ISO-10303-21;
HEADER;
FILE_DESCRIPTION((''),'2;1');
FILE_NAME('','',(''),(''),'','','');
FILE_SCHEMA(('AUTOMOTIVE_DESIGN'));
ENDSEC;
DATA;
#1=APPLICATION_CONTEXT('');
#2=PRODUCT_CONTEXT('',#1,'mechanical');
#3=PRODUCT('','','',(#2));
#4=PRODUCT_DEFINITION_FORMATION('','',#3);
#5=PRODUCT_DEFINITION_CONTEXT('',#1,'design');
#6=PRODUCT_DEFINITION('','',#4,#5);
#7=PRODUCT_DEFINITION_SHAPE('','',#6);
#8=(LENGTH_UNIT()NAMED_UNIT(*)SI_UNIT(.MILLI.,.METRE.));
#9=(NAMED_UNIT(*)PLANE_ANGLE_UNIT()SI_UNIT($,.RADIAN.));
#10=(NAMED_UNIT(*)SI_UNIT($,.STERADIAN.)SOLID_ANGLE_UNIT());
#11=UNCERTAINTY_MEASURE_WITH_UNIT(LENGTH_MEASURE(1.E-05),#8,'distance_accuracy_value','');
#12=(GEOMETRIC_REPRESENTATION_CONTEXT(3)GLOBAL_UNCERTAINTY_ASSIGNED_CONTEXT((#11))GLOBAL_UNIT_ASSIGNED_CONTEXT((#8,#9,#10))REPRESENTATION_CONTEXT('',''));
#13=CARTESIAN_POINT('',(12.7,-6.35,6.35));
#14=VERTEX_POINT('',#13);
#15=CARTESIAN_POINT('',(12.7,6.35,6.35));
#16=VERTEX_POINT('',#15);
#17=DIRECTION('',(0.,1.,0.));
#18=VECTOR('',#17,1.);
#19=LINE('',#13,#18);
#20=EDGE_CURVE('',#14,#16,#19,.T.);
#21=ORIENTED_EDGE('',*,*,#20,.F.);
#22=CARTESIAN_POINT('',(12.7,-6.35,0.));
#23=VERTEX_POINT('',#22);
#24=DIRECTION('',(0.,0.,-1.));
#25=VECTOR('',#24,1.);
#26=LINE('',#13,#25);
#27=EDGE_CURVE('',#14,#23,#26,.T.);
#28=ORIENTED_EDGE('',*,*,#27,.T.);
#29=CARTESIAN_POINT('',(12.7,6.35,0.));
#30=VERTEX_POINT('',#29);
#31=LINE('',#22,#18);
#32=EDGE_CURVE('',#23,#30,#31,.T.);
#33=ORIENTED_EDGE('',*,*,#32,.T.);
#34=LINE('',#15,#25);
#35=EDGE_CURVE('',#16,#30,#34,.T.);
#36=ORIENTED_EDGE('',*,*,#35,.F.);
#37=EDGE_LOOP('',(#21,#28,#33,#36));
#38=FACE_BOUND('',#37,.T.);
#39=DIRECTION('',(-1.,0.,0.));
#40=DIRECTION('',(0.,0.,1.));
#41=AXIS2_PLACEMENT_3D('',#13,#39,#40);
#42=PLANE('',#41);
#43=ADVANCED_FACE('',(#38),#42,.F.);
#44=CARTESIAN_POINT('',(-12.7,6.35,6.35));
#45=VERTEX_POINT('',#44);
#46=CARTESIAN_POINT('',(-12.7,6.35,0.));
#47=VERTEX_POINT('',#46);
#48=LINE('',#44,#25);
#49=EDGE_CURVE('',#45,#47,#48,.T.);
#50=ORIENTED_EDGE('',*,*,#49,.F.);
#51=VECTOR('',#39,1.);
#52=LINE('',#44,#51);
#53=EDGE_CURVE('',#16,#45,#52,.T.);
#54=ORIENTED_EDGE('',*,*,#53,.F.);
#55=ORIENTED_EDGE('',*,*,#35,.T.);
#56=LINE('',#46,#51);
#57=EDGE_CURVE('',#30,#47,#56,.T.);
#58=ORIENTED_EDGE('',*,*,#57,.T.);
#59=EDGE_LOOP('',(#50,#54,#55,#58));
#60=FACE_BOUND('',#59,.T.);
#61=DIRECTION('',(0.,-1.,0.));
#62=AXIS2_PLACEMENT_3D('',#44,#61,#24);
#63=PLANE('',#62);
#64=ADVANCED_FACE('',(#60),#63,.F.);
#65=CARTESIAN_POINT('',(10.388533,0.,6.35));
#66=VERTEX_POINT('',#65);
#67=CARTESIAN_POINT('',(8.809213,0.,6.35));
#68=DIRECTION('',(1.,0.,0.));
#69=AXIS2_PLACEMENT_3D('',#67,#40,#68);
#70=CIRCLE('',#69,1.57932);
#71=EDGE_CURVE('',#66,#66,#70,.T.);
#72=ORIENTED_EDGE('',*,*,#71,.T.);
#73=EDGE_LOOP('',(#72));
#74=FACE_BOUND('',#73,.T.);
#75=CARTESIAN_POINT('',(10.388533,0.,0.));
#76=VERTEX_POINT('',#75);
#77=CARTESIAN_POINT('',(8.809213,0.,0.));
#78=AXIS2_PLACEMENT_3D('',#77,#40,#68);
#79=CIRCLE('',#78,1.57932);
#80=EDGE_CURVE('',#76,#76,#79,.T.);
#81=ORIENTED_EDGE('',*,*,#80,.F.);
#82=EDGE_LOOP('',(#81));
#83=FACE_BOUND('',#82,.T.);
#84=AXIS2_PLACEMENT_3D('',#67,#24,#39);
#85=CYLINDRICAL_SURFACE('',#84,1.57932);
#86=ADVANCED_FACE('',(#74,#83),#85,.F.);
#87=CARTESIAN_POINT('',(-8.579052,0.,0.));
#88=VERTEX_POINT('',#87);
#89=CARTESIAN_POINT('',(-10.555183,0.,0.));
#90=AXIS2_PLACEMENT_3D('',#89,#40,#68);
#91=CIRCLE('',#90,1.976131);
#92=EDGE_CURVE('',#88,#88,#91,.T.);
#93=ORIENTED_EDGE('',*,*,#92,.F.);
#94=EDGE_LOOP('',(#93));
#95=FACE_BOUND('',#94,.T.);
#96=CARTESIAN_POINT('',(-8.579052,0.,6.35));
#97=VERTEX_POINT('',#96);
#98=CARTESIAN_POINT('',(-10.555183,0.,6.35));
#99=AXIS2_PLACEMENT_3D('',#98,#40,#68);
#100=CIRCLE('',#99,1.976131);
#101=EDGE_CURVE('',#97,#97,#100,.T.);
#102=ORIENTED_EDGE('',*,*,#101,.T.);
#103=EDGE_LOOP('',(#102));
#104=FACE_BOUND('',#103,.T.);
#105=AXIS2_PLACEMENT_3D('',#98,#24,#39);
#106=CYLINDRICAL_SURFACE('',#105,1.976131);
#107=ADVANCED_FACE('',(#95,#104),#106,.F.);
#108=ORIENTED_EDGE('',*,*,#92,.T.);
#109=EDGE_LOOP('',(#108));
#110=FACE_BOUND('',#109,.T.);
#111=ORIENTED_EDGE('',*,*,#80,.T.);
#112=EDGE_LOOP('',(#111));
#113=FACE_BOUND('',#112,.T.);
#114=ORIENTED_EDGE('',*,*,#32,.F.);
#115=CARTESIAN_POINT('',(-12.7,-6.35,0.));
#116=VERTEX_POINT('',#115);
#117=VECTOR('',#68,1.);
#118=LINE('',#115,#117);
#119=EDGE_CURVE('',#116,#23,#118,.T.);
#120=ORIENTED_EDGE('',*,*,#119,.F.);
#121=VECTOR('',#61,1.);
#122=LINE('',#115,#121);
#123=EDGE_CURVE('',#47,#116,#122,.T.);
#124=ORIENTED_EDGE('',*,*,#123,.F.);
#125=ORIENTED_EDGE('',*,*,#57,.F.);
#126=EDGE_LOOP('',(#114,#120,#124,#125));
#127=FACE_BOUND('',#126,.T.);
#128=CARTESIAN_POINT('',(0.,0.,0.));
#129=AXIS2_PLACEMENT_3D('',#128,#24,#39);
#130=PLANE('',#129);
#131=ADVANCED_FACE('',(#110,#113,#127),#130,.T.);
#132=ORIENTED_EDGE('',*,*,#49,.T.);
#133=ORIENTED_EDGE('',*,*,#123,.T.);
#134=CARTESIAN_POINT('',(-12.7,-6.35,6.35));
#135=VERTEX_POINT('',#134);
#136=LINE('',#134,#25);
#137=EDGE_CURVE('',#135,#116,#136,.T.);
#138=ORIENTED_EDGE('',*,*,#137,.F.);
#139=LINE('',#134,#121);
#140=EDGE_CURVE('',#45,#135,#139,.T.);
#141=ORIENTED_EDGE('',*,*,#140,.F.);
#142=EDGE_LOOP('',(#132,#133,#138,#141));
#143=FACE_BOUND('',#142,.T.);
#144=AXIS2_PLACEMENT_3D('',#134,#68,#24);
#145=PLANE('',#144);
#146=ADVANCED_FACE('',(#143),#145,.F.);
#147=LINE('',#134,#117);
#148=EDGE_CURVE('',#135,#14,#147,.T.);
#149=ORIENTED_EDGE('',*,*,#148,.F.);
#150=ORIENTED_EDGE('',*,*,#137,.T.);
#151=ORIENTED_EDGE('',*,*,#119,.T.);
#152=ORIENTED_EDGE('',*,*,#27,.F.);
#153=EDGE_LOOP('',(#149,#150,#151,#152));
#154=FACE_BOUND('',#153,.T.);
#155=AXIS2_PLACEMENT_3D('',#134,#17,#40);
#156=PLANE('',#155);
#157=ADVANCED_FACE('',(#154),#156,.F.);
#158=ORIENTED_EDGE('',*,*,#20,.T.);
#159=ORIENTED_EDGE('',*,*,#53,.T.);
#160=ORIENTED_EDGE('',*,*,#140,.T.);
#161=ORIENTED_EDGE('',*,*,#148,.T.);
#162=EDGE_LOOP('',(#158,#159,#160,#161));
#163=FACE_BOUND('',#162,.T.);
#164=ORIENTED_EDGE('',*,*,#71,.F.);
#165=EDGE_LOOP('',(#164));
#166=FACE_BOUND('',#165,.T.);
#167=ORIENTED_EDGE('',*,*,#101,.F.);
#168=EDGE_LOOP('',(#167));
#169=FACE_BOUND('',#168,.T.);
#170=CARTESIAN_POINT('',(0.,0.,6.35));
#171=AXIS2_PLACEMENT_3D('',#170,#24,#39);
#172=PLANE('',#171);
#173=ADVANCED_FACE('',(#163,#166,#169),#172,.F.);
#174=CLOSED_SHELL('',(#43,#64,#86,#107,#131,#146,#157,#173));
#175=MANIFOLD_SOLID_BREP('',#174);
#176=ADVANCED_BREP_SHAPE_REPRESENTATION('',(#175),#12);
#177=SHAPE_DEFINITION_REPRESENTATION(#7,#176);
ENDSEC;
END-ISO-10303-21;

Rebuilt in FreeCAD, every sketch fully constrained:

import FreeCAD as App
import Part
import Sketcher
Q = App.Units.Quantity


def add_polygon(sketch, points):
    """Adds a closed chain of lines whose ends are joined by coincident constraints."""
    first, n = sketch.GeometryCount, len(points)
    for a, b in zip(points, points[1:] + points[:1]):
        sketch.addGeometry(Part.LineSegment(App.Vector(*a, 0), App.Vector(*b, 0)), False)
    for i in range(n):
        sketch.addConstraint(Sketcher.Constraint("Coincident", first + i, 2, first + (i + 1) % n, 1))

doc = App.newDocument("Part")
body = doc.addObject("PartDesign::Body", "Body")

# Sketch on XY plane
sketch1 = doc.addObject("Sketcher::SketchObject", "Sketch")
body.addObject(sketch1)
sketch1.AttachmentSupport = (doc.XY_Plane, [""])
sketch1.MapMode = "FlatFace"
add_polygon(sketch1, [(-12.7, 6.35), (-12.7, -6.35), (12.7, -6.35), (12.7, 6.35)])  # lines 0-3
sketch1.addGeometry(Part.Circle(App.Vector(-10.555183, 0, 0), App.Vector(0, 0, 1), 1.976131), False)  # 4
sketch1.addGeometry(Part.Circle(App.Vector(8.809213, 0, 0), App.Vector(0, 0, 1), 1.57932), False)  # 5
sketch1.addConstraint([
    Sketcher.Constraint("Vertical", 0),
    Sketcher.Constraint("Horizontal", 1),
    Sketcher.Constraint("Vertical", 2),
    Sketcher.Constraint("Horizontal", 3),
    Sketcher.Constraint("Symmetric", 0, 2, 2, 2, -1, 1),
    Sketcher.Constraint("PointOnObject", 4, 3, -1),
    Sketcher.Constraint("PointOnObject", 5, 3, -1),
    Sketcher.Constraint("DistanceX", 1, 1, 1, 2, Q("1 in")),
    Sketcher.Constraint("DistanceY", 0, 2, 0, 1, Q("0.5 in")),
    Sketcher.Constraint("Diameter", 5, 3.15864),
    Sketcher.Constraint("Diameter", 4, 3.952263),
    Sketcher.Constraint("DistanceX", 4, 3, -1, 1, 10.555183),
    Sketcher.Constraint("DistanceX", -1, 1, 5, 3, 8.809213),
])
pad1 = doc.addObject("PartDesign::Pad", "Pad")
body.addObject(pad1)
pad1.Profile = sketch1
pad1.Length = Q("0.25 in")

doc.recompute()
